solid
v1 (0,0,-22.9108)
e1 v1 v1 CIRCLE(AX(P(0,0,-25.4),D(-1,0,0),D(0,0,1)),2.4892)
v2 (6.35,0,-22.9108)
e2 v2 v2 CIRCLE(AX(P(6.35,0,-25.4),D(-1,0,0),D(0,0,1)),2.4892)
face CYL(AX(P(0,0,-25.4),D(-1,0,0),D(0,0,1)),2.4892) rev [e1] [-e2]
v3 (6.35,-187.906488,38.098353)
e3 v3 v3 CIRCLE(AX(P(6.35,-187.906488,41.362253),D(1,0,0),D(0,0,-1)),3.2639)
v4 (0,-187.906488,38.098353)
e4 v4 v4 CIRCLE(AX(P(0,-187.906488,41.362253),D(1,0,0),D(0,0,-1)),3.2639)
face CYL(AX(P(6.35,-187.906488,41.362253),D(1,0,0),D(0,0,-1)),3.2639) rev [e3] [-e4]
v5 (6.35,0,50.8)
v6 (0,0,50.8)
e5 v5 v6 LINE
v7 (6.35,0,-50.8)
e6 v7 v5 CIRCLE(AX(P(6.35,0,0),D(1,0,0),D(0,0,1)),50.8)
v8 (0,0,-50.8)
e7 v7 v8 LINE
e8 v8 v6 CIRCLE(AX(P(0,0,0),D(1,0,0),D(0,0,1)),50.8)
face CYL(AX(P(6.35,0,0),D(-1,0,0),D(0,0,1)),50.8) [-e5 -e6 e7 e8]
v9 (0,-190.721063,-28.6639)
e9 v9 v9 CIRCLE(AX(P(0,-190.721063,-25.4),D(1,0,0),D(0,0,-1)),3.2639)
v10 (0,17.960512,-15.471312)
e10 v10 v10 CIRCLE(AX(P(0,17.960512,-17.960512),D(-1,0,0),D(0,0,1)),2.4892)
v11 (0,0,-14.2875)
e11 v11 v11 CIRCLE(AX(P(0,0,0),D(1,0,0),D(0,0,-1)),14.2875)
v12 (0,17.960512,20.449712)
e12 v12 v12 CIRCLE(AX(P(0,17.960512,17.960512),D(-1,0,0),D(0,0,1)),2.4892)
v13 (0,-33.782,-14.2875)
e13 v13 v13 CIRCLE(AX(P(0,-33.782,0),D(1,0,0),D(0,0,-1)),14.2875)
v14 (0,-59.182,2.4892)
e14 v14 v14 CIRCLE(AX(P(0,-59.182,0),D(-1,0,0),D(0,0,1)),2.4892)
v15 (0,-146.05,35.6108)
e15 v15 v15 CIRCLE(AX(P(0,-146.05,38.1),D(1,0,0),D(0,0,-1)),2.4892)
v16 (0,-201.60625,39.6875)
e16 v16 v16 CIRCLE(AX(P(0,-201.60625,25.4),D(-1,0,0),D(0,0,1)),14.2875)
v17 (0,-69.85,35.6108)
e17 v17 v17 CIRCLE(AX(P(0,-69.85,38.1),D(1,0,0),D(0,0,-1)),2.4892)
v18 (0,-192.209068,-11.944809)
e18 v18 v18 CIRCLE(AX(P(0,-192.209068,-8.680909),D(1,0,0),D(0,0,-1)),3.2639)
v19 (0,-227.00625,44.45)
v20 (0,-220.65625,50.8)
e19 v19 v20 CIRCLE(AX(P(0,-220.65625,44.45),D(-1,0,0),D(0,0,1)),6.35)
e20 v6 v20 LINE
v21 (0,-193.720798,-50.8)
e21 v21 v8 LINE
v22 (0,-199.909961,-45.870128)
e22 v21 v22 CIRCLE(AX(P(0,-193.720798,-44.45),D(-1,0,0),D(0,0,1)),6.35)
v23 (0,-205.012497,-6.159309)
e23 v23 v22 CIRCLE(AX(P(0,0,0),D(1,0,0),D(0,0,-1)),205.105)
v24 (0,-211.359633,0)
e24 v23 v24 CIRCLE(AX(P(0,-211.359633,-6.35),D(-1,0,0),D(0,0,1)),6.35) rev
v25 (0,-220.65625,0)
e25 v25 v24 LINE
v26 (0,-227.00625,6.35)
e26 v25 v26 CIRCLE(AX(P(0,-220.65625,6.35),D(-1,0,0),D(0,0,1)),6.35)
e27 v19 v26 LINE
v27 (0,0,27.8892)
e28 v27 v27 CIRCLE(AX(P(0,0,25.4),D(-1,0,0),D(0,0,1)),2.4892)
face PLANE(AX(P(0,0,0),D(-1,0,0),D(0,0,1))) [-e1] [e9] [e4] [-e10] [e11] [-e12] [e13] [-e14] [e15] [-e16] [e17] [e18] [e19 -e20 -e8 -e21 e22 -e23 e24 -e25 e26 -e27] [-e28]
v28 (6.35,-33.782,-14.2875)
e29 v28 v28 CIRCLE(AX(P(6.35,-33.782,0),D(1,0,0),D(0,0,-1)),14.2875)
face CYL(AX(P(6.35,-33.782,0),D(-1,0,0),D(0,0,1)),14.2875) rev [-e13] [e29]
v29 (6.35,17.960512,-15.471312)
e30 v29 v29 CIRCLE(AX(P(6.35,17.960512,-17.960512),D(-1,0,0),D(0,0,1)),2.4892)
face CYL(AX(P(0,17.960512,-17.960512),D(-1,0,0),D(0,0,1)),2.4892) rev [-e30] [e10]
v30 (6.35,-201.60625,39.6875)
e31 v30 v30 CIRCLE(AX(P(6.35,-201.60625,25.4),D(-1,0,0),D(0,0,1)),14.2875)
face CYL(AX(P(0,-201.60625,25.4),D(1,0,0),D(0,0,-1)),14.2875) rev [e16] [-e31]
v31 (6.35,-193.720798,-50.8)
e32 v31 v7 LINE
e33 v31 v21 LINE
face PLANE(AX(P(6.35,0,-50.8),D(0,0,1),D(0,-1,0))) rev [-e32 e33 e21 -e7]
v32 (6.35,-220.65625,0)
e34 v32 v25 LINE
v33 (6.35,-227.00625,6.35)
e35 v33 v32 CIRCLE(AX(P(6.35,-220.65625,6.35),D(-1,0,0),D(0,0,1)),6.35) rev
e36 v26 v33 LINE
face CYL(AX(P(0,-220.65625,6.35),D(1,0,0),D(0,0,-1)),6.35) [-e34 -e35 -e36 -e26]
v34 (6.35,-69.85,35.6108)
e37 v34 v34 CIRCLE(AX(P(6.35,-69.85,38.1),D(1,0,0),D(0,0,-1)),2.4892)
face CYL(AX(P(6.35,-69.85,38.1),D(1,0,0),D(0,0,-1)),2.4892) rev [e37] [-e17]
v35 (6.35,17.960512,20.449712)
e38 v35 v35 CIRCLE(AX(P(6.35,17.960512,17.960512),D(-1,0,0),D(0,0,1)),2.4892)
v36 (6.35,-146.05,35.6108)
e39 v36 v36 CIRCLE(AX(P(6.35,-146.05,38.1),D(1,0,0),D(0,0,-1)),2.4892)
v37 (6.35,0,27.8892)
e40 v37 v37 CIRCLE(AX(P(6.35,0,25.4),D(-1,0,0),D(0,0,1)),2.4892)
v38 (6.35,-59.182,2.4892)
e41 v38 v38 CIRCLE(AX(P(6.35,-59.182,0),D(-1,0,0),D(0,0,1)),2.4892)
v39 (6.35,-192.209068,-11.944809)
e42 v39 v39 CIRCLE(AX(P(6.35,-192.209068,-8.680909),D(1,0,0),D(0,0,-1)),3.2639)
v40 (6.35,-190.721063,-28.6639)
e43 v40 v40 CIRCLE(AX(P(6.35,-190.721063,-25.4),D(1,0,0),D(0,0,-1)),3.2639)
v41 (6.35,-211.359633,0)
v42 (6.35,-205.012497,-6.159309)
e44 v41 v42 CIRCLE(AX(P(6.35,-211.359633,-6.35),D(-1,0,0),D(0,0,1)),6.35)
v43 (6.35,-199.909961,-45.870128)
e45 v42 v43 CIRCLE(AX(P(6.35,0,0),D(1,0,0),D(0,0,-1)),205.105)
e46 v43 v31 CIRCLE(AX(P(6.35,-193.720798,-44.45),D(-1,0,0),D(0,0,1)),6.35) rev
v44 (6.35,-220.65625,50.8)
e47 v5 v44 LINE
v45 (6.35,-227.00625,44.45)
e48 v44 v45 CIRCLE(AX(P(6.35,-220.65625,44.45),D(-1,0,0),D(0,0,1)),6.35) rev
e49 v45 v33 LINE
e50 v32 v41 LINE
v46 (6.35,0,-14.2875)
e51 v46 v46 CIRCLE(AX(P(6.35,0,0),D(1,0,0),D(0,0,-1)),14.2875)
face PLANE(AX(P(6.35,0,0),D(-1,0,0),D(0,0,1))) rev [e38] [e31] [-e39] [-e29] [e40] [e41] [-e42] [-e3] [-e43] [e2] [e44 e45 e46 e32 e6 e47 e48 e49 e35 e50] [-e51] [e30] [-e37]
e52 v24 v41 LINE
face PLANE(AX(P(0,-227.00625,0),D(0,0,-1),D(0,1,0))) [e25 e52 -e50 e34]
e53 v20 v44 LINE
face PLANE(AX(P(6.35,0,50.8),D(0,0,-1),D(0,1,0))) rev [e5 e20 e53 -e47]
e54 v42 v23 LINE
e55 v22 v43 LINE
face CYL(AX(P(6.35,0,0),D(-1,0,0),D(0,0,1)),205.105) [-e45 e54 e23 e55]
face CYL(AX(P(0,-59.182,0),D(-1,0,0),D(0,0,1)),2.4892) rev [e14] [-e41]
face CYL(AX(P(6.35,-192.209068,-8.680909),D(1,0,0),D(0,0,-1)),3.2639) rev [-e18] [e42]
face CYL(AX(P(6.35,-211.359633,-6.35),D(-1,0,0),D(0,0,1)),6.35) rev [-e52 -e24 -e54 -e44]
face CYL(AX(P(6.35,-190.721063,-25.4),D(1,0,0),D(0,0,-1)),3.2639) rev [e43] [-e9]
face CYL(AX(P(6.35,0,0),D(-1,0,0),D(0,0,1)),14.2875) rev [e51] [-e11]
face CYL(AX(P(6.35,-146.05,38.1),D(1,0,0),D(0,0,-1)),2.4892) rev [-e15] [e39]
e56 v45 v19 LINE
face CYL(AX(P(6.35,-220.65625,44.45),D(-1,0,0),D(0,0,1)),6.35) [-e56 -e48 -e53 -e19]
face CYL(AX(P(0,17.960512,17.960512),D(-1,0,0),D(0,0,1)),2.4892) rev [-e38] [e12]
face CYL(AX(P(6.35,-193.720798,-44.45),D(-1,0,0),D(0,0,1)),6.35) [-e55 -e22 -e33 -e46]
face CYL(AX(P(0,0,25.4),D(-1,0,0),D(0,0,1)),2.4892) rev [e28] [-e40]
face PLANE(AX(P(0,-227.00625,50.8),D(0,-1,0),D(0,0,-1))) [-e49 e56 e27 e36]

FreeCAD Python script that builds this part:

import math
import FreeCAD as App
import Part
import Sketcher
from FreeCAD import Vector
Q = App.Units.Quantity


def edges_at(feature, points):
    """Names of the edges that pass closest to the given points."""
    edges = feature.Shape.Edges
    near = lambda p: min(range(len(edges)), key=lambda i: edges[i].distToShape(Part.Vertex(*p))[0])
    return sorted({f"Edge{near(p) + 1}" for p in points})

doc = App.newDocument("Part")
body = doc.addObject("PartDesign::Body", "Body")

sketch1 = doc.addObject("Sketcher::SketchObject", "Sketch")
body.addObject(sketch1)
sketch1.AttachmentSupport = (doc.YZ_Plane, [""])
sketch1.MapMode = "FlatFace"
sketch1.addGeometry(Part.LineSegment(Vector(-198.714421, -50.8, 0), Vector(0, -50.8, 0)), False)
sketch1.addGeometry(Part.ArcOfCircle(Part.Circle(Vector(0, 0, 0), Vector(0, 0, 1), 50.8), math.radians(-90), math.radians(90)), False)
sketch1.addGeometry(Part.LineSegment(Vector(0, 50.8, 0), Vector(-198.714421, 50.8, 0)), False)
sketch1.addGeometry(Part.ArcOfCircle(Part.Circle(Vector(0, 0, 0), Vector(0, 0, 1), 205.105), math.radians(165.659848), math.radians(194.340152)), False)
sketch1.addGeometry(Part.Circle(Vector(0, 0, 0), Vector(0, 0, 1), 14.2875), False)
sketch1.addGeometry(Part.Circle(Vector(-33.782, 0, 0), Vector(0, 0, 1), 14.2875), False)
sketch1.addConstraint(Sketcher.Constraint("Tangent", 0, 2, 1, 1))
sketch1.addConstraint(Sketcher.Constraint("Tangent", 1, 2, 2, 1))
sketch1.addConstraint(Sketcher.Constraint("Coincident", 2, 2, 3, 1))
sketch1.addConstraint(Sketcher.Constraint("Coincident", 3, 2, 0, 1))
sketch1.addConstraint(Sketcher.Constraint("Horizontal", 0))
sketch1.addConstraint(Sketcher.Constraint("Horizontal", 2))
sketch1.addConstraint(Sketcher.Constraint("Coincident", 1, 3, -1, 1))
sketch1.addConstraint(Sketcher.Constraint("Coincident", 3, 3, -1, 1))
sketch1.addConstraint(Sketcher.Constraint("Coincident", 4, 3, -1, 1))
sketch1.addConstraint(Sketcher.Constraint("Equal", 4, 5))
sketch1.addConstraint(Sketcher.Constraint("PointOnObject", 5, 3, -1))
sketch1.addConstraint(Sketcher.Constraint("Radius", 1, Q("2 in")))
sketch1.addConstraint(Sketcher.Constraint("Diameter", 4, Q("1.125 in")))
sketch1.addConstraint(Sketcher.Constraint("Radius", 3, Q("8.075 in")))
sketch1.addConstraint(Sketcher.Constraint("DistanceX", 5, 3, -1, 1, Q("1.33 in")))
pad1 = doc.addObject("PartDesign::Pad", "Pad")
body.addObject(pad1)
pad1.Profile = sketch1
pad1.Length = Q("0.25 in")

sketch2 = doc.addObject("Sketcher::SketchObject", "Sketch001")
body.addObject(sketch2)
sketch2.AttachmentSupport = (doc.YZ_Plane, [""])
sketch2.MapMode = "FlatFace"
sketch2.AttachmentOffset = App.Placement(Vector(0, 0, 0.25 * 25.4), App.Rotation())
sketch2.addGeometry(Part.Circle(Vector(0, 0, 0), Vector(0, 0, 1), 3.2639), False)
sketch2.addGeometry(Part.Circle(Vector(-190.721063, -25.4, 0), Vector(0, 0, 1), 3.2639), False)
sketch2.addGeometry(Part.Circle(Vector(-192.209068, -8.680909, 0), Vector(0, 0, 1), 3.2639), False)
sketch2.addGeometry(Part.Circle(Vector(-187.906488, 41.362253, 0), Vector(0, 0, 1), 3.2639), False)
sketch2.addConstraint(Sketcher.Constraint("Coincident", 0, 3, -1, 1))
sketch2.addConstraint(Sketcher.Constraint("Equal", 0, 1))
sketch2.addConstraint(Sketcher.Constraint("Equal", 1, 2))
sketch2.addConstraint(Sketcher.Constraint("Equal", 2, 3))
sketch2.addConstraint(Sketcher.Constraint("Diameter", 0, Q("0.257 in")))
sketch2.addConstraint(Sketcher.Constraint("DistanceY", 1, 3, -1, 1, Q("1 in")))
sketch2.addConstraint(Sketcher.Constraint("DistanceX", 2, 3, -1, 1, Q("192.209068 mm")))
sketch2.addConstraint(Sketcher.Constraint("DistanceY", 2, 3, -1, 1, Q("8.680909 mm")))
sketch2.addConstraint(Sketcher.Constraint("DistanceX", 2, 3, 3, 3, Q("4.30258 mm")))
sketch2.addConstraint(Sketcher.Constraint("DistanceX", 1, 3, -1, 1, Q("190.721063 mm")))
sketch2.addConstraint(Sketcher.Constraint("DistanceY", -1, 1, 3, 3, Q("41.362253 mm")))
doc.recompute()
hole = doc.addObject("PartDesign::Hole", "Hole")
body.addObject(hole)
hole.Profile = sketch2
hole.ThreadType = "None"
hole.Diameter = Q("0.257 in")
hole.DepthType = "ThroughAll"

sketch3 = doc.addObject("Sketcher::SketchObject", "Sketch002")
body.addObject(sketch3)
sketch3.AttachmentSupport = (doc.YZ_Plane, [""])
sketch3.MapMode = "FlatFace"
sketch3.AttachmentOffset = App.Placement(Vector(0, 0, 0.25 * 25.4), App.Rotation())
sketch3.addGeometry(Part.Circle(Vector(-146.05, 38.1, 0), Vector(0, 0, 1), 2.4892), False)
sketch3.addGeometry(Part.Circle(Vector(-69.85, 38.1, 0), Vector(0, 0, 1), 2.4892), False)
sketch3.addConstraint(Sketcher.Constraint("Equal", 0, 1))
sketch3.addConstraint(Sketcher.Constraint("Horizontal", 0, 3, 1, 3))
sketch3.addConstraint(Sketcher.Constraint("Diameter", 0, Q("0.196 in")))
sketch3.addConstraint(Sketcher.Constraint("DistanceX", 0, 3, 1, 3, Q("3 in")))
sketch3.addConstraint(Sketcher.Constraint("DistanceY", -1, 1, 0, 3, Q("1.5 in")))
sketch3.addConstraint(Sketcher.Constraint("DistanceX", 0, 3, -1, 1, Q("5.75 in")))
doc.recompute()
hole2 = doc.addObject("PartDesign::Hole", "Hole001")
body.addObject(hole2)
hole2.Profile = sketch3
hole2.ThreadType = "None"
hole2.Diameter = Q("0.196 in")
hole2.DepthType = "ThroughAll"

sketch4 = doc.addObject("Sketcher::SketchObject", "Sketch003")
body.addObject(sketch4)
sketch4.AttachmentSupport = (doc.YZ_Plane, [""])
sketch4.MapMode = "FlatFace"
sketch4.addGeometry(Part.Circle(Vector(-59.182, 0, 0), Vector(0, 0, 1), 2.4892), False)
sketch4.addGeometry(Part.Circle(Vector(0, 25.4, 0), Vector(0, 0, 1), 2.4892), False)
sketch4.addGeometry(Part.Circle(Vector(0, -25.4, 0), Vector(0, 0, 1), 2.4892), False)
sketch4.addGeometry(Part.Circle(Vector(17.960512, -17.960512, 0), Vector(0, 0, 1), 2.4892), False)
sketch4.addGeometry(Part.Circle(Vector(17.960512, 17.960512, 0), Vector(0, 0, 1), 2.4892), False)
sketch4.addConstraint(Sketcher.Constraint("Equal", 0, 1))
sketch4.addConstraint(Sketcher.Constraint("Equal", 1, 2))
sketch4.addConstraint(Sketcher.Constraint("Equal", 2, 3))
sketch4.addConstraint(Sketcher.Constraint("Equal", 3, 4))
sketch4.addConstraint(Sketcher.Constraint("Symmetric", 1, 3, 2, 3, -1, 1))
sketch4.addConstraint(Sketcher.Constraint("Symmetric", 3, 3, 4, 3, -1))
sketch4.addConstraint(Sketcher.Constraint("PointOnObject", 0, 3, -1))
sketch4.addConstraint(Sketcher.Constraint("PointOnObject", 1, 3, -2))
sketch4.addConstraint(Sketcher.Constraint("Diameter", 0, Q("0.196 in")))
sketch4.addConstraint(Sketcher.Constraint("DistanceY", -1, 1, 1, 3, Q("1 in")))
sketch4.addConstraint(Sketcher.Constraint("DistanceX", 0, 3, -1, 1, Q("2.33 in")))
sketch4.addConstraint(Sketcher.Constraint("DistanceX", -1, 1, 3, 3, Q("17.960512 mm")))
sketch4.addConstraint(Sketcher.Constraint("DistanceY", 3, 3, -1, 1, Q("17.960512 mm")))
doc.recompute()
hole3 = doc.addObject("PartDesign::Hole", "Hole002")
body.addObject(hole3)
hole3.Profile = sketch4
hole3.ThreadType = "None"
hole3.Diameter = Q("0.196 in")
hole3.DepthType = "ThroughAll"
hole3.Reversed = True

sketch5 = doc.addObject("Sketcher::SketchObject", "Sketch004")
body.addObject(sketch5)
sketch5.AttachmentSupport = (doc.YZ_Plane, [""])
sketch5.MapMode = "FlatFace"
sketch5.addGeometry(Part.LineSegment(Vector(-198.714421, 50.8, 0), Vector(-227.00625, 50.8, 0)), False)
sketch5.addGeometry(Part.LineSegment(Vector(-227.00625, 50.8, 0), Vector(-227.00625, 0, 0)), False)
sketch5.addGeometry(Part.LineSegment(Vector(-227.00625, 0, 0), Vector(-205.105, 0, 0)), False)
sketch5.addGeometry(Part.ArcOfCircle(Part.Circle(Vector(0, 0, 0), Vector(0, 0, 1), 205.105), math.radians(176.794095), math.radians(180)), False)
sketch5.addGeometry(Part.ArcOfCircle(Part.Circle(Vector(-201.60625, 25.4, 0), Vector(0, 0, 1), 14.2875), math.radians(88.489438), math.radians(257.149051)), False)
sketch5.addGeometry(Part.LineSegment(Vector(-201.229614, 39.682535, 0), Vector(-198.714421, 50.8, 0)), False)
sketch5.addConstraint(Sketcher.Constraint("Coincident", 0, 2, 1, 1))
sketch5.addConstraint(Sketcher.Constraint("Coincident", 1, 2, 2, 1))
sketch5.addConstraint(Sketcher.Constraint("Coincident", 2, 2, 3, 2))
sketch5.addConstraint(Sketcher.Constraint("Coincident", 3, 1, 4, 2))
sketch5.addConstraint(Sketcher.Constraint("Coincident", 4, 1, 5, 1))
sketch5.addConstraint(Sketcher.Constraint("Coincident", 5, 2, 0, 1))
sketch5.addConstraint(Sketcher.Constraint("Horizontal", 0))
sketch5.addConstraint(Sketcher.Constraint("Vertical", 1))
sketch5.addConstraint(Sketcher.Constraint("Horizontal", 2))
sketch5.addConstraint(Sketcher.Constraint("Coincident", 3, 3, -1, 1))
sketch5.addConstraint(Sketcher.Constraint("PointOnObject", 1, 2, -1))
sketch5.addConstraint(Sketcher.Constraint("DistanceY", 1, 2, 1, 1, Q("2 in")))
sketch5.addConstraint(Sketcher.Constraint("DistanceY", -1, 1, 4, 3, Q("1 in")))
sketch5.addConstraint(Sketcher.Constraint("Radius", 3, Q("8.075 in")))
sketch5.addConstraint(Sketcher.Constraint("Radius", 4, Q("0.5625 in")))
sketch5.addConstraint(Sketcher.Constraint("DistanceX", 0, 2, 4, 3, Q("1 in")))
sketch5.addConstraint(Sketcher.Constraint("DistanceX", 0, 2, 0, 1, Q("28.291829 mm")))
sketch5.addConstraint(Sketcher.Constraint("DistanceX", 2, 1, 2, 2, Q("21.90125 mm")))
sketch5.addConstraint(Sketcher.Constraint("DistanceX", 3, 1, 4, 1, Q("3.554398 mm")))
pad2 = doc.addObject("PartDesign::Pad", "Pad001")
body.addObject(pad2)
pad2.Profile = sketch5
pad2.Length = Q("0.25 in")

sketch6 = doc.addObject("Sketcher::SketchObject", "Sketch005")
body.addObject(sketch6)
sketch6.AttachmentSupport = (doc.YZ_Plane, [""])
sketch6.MapMode = "FlatFace"
sketch6.addGeometry(Part.Circle(Vector(-201.60625, 25.4, 0), Vector(0, 0, 1), 14.2875), False)
sketch6.addConstraint(Sketcher.Constraint("Diameter", 0, Q("1.125 in")))
sketch6.addConstraint(Sketcher.Constraint("DistanceY", -1, 1, 0, 3, Q("1 in")))
sketch6.addConstraint(Sketcher.Constraint("DistanceX", 0, 3, -1, 1, Q("201.60625 mm")))
pocket1 = doc.addObject("PartDesign::Pocket", "Pocket")
body.addObject(pocket1)
pocket1.Profile = sketch6
pocket1.Length = Q("0.25 in")
pocket1.Reversed = True
doc.recompute()

fillet = doc.addObject("PartDesign::Fillet", "Fillet")
body.addObject(fillet)
fillet.Base = (pocket1, edges_at(pocket1, [
    (3.175, -198.714, -50.8),
    (3.175, -205.105, 0),
    (3.175, -227.006, 0),
    (3.175, -227.006, 50.8),
]))
fillet.Radius = Q("0.25 in")

doc.recompute()
